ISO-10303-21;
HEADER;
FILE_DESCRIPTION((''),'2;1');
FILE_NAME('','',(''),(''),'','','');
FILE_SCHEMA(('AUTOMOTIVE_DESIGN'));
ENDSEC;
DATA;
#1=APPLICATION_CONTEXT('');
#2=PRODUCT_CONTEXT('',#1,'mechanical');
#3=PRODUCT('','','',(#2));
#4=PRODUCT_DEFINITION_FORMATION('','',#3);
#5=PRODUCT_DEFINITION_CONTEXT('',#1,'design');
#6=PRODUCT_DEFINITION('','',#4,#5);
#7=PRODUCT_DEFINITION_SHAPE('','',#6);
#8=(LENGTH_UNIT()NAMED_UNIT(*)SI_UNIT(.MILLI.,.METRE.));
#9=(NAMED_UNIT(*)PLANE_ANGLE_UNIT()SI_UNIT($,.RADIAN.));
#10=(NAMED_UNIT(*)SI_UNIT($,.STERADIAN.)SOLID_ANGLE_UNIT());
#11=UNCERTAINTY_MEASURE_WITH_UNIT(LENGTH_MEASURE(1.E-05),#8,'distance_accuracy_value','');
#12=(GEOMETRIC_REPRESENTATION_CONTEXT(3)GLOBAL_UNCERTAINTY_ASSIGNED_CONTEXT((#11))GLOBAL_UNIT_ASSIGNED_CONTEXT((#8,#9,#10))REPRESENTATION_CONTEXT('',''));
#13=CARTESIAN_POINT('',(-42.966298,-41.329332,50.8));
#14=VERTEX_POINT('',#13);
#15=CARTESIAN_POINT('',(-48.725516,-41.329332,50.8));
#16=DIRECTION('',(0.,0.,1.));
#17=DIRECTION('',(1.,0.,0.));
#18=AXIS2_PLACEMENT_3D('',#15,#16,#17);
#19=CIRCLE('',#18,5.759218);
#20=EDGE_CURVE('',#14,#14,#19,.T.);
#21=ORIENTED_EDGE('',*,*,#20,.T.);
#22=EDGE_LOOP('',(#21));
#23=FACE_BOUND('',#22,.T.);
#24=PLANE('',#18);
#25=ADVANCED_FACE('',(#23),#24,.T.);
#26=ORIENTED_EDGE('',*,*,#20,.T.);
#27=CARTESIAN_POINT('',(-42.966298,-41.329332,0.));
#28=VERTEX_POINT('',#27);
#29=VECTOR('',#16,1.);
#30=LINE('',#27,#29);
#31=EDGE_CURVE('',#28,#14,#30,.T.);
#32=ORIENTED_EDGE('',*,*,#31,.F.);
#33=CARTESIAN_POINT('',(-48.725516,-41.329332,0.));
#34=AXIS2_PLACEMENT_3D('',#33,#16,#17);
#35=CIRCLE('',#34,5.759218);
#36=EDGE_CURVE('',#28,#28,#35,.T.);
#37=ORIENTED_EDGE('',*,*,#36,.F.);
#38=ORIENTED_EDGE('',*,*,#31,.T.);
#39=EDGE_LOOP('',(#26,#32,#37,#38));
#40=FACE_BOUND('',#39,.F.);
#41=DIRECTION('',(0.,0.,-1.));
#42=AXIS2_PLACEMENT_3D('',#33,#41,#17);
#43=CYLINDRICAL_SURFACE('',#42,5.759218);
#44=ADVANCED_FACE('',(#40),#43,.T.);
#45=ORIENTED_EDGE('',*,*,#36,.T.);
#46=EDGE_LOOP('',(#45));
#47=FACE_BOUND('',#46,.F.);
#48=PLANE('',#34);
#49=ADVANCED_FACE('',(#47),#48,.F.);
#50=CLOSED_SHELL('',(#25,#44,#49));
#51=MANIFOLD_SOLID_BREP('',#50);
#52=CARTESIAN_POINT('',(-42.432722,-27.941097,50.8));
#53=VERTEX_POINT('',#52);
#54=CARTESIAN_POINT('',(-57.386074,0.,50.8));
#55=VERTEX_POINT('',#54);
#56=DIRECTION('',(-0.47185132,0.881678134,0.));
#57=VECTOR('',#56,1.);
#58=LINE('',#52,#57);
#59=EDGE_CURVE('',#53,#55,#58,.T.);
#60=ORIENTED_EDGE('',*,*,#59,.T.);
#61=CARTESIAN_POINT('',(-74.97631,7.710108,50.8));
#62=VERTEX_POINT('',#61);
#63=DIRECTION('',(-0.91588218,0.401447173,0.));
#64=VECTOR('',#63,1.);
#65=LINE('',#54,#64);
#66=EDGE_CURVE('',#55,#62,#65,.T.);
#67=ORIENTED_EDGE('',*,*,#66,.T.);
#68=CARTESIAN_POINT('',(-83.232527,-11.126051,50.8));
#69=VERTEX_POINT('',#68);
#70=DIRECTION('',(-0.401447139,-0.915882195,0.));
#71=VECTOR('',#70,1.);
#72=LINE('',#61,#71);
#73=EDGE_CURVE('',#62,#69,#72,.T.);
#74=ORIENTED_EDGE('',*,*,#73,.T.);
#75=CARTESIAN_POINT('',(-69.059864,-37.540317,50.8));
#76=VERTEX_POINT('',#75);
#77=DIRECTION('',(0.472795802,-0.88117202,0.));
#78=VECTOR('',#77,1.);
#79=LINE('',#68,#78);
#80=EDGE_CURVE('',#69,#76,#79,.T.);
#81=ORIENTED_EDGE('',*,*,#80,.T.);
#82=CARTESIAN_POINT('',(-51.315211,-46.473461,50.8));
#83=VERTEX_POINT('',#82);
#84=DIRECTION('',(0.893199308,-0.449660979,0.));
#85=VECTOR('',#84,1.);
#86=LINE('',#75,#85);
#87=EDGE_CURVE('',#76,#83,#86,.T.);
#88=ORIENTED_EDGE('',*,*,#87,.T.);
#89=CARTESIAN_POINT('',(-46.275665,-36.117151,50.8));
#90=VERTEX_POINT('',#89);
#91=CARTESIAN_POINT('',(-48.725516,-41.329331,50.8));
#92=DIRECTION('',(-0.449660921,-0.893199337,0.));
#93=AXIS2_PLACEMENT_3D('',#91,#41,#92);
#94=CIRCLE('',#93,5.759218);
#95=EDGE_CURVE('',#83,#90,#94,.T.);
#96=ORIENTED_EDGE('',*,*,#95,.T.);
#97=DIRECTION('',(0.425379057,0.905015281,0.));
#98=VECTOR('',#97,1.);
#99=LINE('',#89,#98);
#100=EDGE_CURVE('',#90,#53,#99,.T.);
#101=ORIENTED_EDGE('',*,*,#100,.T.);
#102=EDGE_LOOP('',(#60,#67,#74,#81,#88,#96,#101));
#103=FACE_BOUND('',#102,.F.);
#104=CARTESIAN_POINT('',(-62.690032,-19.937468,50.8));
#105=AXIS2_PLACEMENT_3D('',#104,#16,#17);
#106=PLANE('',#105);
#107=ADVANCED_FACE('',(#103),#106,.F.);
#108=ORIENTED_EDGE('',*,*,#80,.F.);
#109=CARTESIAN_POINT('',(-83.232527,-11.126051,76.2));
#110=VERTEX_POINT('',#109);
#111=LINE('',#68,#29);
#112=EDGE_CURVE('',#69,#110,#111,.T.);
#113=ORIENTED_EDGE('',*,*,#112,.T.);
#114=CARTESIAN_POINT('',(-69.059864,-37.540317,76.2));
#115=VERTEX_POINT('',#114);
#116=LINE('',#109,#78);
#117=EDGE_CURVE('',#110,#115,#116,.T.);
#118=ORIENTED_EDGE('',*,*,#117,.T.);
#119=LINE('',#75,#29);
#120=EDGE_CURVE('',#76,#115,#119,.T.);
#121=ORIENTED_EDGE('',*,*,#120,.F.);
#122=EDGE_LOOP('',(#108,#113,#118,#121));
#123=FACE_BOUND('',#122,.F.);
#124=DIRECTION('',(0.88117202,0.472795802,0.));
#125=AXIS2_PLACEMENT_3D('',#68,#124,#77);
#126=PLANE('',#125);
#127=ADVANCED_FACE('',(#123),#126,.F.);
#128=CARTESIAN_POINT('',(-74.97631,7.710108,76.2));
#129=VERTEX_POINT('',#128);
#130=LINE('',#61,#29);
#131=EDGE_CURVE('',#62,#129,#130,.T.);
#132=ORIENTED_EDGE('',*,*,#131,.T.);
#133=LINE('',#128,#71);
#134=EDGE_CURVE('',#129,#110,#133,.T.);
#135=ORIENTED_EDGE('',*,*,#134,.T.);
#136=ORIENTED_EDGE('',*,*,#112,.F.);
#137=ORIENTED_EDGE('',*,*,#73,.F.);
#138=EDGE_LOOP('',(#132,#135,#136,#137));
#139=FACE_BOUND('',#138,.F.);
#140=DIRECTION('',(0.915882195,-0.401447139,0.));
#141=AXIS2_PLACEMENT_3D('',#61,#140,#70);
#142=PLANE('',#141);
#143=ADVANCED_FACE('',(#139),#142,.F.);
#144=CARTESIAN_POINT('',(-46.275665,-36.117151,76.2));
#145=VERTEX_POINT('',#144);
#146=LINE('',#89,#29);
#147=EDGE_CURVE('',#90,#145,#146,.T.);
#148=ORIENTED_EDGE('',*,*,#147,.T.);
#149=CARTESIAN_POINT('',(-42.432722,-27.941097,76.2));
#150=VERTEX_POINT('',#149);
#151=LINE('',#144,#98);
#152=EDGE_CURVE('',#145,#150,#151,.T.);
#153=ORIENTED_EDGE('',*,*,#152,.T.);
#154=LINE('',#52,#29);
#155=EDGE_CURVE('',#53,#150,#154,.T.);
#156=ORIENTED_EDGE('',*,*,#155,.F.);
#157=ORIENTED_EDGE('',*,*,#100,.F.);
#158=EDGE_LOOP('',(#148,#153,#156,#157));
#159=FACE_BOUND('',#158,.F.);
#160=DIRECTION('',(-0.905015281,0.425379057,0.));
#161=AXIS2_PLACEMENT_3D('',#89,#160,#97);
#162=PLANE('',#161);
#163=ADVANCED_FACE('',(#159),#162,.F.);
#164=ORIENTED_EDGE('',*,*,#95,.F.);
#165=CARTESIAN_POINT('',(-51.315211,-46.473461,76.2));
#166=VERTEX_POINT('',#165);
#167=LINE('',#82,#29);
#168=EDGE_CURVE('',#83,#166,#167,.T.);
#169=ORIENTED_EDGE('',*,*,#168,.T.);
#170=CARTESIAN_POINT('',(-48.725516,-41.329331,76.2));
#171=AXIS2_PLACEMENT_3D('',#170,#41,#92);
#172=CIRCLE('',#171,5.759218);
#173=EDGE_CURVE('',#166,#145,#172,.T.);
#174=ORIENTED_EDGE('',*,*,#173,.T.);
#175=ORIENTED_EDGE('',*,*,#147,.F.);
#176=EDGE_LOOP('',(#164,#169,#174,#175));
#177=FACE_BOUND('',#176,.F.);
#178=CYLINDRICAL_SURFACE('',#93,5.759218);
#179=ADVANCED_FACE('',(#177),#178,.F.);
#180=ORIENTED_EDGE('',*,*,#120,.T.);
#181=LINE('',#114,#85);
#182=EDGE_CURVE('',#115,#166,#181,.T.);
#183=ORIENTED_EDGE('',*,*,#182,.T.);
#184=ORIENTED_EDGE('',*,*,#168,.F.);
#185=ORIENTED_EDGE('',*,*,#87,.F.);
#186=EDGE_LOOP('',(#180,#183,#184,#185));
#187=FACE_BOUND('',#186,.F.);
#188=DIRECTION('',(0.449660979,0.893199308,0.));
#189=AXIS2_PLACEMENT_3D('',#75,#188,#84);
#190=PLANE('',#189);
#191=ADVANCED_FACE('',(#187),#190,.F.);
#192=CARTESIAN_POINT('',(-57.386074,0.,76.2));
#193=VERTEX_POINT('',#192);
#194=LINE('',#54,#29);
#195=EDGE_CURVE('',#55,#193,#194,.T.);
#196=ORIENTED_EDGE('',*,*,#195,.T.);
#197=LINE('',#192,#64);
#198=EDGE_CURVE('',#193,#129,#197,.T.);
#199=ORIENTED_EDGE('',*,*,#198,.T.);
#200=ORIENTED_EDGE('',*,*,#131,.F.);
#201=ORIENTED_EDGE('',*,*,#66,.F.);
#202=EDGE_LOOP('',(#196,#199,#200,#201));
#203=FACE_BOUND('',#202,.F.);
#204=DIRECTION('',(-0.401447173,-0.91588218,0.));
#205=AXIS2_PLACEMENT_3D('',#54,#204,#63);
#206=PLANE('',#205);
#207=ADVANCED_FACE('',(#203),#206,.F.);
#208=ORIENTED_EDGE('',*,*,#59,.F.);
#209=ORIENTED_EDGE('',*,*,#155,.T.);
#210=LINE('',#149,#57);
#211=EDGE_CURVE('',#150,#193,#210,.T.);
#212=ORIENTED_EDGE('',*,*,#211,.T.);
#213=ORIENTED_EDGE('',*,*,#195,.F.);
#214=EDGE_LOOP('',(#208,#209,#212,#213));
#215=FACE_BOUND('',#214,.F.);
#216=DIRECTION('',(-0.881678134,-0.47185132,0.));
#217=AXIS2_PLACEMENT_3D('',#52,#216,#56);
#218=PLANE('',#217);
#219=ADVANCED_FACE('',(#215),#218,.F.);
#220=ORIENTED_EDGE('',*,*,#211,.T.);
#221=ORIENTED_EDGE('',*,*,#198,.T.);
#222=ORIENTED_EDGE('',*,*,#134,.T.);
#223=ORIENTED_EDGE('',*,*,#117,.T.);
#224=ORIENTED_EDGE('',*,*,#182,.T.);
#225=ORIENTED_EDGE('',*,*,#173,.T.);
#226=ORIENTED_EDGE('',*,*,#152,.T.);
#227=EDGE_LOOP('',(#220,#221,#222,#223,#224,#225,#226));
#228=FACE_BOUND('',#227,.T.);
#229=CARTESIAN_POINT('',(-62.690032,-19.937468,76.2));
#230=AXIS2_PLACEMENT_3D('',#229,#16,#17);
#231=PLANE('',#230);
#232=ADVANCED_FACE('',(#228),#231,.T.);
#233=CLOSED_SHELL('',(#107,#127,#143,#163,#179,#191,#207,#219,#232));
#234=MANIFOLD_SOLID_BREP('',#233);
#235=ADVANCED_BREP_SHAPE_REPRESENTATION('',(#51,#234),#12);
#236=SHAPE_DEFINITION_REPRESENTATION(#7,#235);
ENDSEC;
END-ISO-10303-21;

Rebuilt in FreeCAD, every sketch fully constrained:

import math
import FreeCAD as App
import Part
import Sketcher
from FreeCAD import Vector
Q = App.Units.Quantity

doc = App.newDocument("Part")
params = doc.addObject("Spreadsheet::Sheet", "Params")
for row, (alias, value) in enumerate([
    ("pad1_length", "2 in"),
    ("pad2_length", "1 in"),
], start=1):
    params.set(f"A{row}", alias)
    params.set(f"B{row}", "=" + value)
    params.setAlias(f"B{row}", alias)

body = doc.addObject("PartDesign::Body", "Body")

# Sketch on XY plane
sketch1 = body.newObject("Sketcher::SketchObject", "Sketch")
sketch1.AttachmentSupport = (doc.getObject("XY_Plane"), [""])
sketch1.MapMode = "FlatFace"
sketch1.addGeometry(Part.Circle(Vector(-49, -41, 0), Vector(0, 0, 1), 6), False)
sketch1.addConstraint(Sketcher.Constraint("Diameter", 0, Q("11.518436 mm")))
sketch1.addConstraint(Sketcher.Constraint("DistanceX", 0, 3, -1, 1, Q("48.725516 mm")))
sketch1.addConstraint(Sketcher.Constraint("DistanceY", 0, 3, -1, 1, Q("41.329332 mm")))
pad1 = body.newObject("PartDesign::Pad", "Pad")
pad1.Profile = sketch1
pad1.setExpression("Length", "Params.pad1_length")
body2 = doc.addObject("PartDesign::Body", "Body001")

# Sketch on XY plane
sketch2 = body2.newObject("Sketcher::SketchObject", "Sketch001")
sketch2.AttachmentSupport = (doc.getObject("XY_Plane001"), [""])
sketch2.MapMode = "FlatFace"
sketch2.AttachmentOffset = App.Placement(Vector(0, 0, 2 * 25.4), App.Rotation())
sketch2.addGeometry(Part.ArcOfCircle(Part.Circle(Vector(-49, -41, 0), Vector(0, 0, 1), 6), math.radians(65), math.radians(243)), False)
sketch2.addGeometry(Part.LineSegment(Vector(-46, -36, 0), Vector(-42, -28, 0)), False)
sketch2.addGeometry(Part.LineSegment(Vector(-42, -28, 0), Vector(-57, 0, 0)), False)
sketch2.addGeometry(Part.LineSegment(Vector(-57, 0, 0), Vector(-75, 8, 0)), False)
sketch2.addGeometry(Part.LineSegment(Vector(-75, 8, 0), Vector(-83, -11, 0)), False)
sketch2.addGeometry(Part.LineSegment(Vector(-83, -11, 0), Vector(-69, -38, 0)), False)
sketch2.addGeometry(Part.LineSegment(Vector(-69, -38, 0), Vector(-51, -46, 0)), False)
sketch2.addConstraint(Sketcher.Constraint("Coincident", 0, 1, 1, 1))
sketch2.addConstraint(Sketcher.Constraint("Coincident", 1, 2, 2, 1))
sketch2.addConstraint(Sketcher.Constraint("Coincident", 2, 2, 3, 1))
sketch2.addConstraint(Sketcher.Constraint("Coincident", 3, 2, 4, 1))
sketch2.addConstraint(Sketcher.Constraint("Coincident", 4, 2, 5, 1))
sketch2.addConstraint(Sketcher.Constraint("Coincident", 5, 2, 6, 1))
sketch2.addConstraint(Sketcher.Constraint("Tangent", 6, 2, 0, 2))
sketch2.addConstraint(Sketcher.Constraint("PointOnObject", 2, 2, -1))
sketch2.addConstraint(Sketcher.Constraint("Perpendicular", 3, 4))
sketch2.addConstraint(Sketcher.Constraint("Radius", 0, Q("5.759218 mm")))
sketch2.addConstraint(Sketcher.Constraint("Distance", 6, Q("19.866398 mm")))
sketch2.addConstraint(Sketcher.Constraint("DistanceY", 0, 1, 4, 2, Q("24.9911 mm")))
sketch2.addConstraint(Sketcher.Constraint("DistanceX", 5, 2, 0, 1, Q("22.784199 mm")))
sketch2.addConstraint(Sketcher.Constraint("Distance", 1, Q("9.034161 mm")))
sketch2.addConstraint(Sketcher.Constraint("DistanceY", 0, 3, -1, 1, Q("41.329331 mm")))
sketch2.addConstraint(Sketcher.Constraint("DistanceY", 0, 1, -1, 1, Q("36.117151 mm")))
sketch2.addConstraint(Sketcher.Constraint("DistanceX", 1, 2, -1, 1, Q("42.432722 mm")))
sketch2.addConstraint(Sketcher.Constraint("DistanceX", 3, 2, -1, 1, Q("74.97631 mm")))
sketch2.addConstraint(Sketcher.Constraint("DistanceX", 6, 2, -1, 1, Q("51.315211 mm")))
sketch2.addConstraint(Sketcher.Constraint("DistanceX", 2, 2, 0, 1, Q("11.110409 mm")))
sketch2.addConstraint(Sketcher.Constraint("DistanceY", 0, 1, 3, 2, Q("43.827259 mm")))
pad2 = body2.newObject("PartDesign::Pad", "Pad001")
pad2.Profile = sketch2
pad2.setExpression("Length", "Params.pad2_length")

doc.recompute()
